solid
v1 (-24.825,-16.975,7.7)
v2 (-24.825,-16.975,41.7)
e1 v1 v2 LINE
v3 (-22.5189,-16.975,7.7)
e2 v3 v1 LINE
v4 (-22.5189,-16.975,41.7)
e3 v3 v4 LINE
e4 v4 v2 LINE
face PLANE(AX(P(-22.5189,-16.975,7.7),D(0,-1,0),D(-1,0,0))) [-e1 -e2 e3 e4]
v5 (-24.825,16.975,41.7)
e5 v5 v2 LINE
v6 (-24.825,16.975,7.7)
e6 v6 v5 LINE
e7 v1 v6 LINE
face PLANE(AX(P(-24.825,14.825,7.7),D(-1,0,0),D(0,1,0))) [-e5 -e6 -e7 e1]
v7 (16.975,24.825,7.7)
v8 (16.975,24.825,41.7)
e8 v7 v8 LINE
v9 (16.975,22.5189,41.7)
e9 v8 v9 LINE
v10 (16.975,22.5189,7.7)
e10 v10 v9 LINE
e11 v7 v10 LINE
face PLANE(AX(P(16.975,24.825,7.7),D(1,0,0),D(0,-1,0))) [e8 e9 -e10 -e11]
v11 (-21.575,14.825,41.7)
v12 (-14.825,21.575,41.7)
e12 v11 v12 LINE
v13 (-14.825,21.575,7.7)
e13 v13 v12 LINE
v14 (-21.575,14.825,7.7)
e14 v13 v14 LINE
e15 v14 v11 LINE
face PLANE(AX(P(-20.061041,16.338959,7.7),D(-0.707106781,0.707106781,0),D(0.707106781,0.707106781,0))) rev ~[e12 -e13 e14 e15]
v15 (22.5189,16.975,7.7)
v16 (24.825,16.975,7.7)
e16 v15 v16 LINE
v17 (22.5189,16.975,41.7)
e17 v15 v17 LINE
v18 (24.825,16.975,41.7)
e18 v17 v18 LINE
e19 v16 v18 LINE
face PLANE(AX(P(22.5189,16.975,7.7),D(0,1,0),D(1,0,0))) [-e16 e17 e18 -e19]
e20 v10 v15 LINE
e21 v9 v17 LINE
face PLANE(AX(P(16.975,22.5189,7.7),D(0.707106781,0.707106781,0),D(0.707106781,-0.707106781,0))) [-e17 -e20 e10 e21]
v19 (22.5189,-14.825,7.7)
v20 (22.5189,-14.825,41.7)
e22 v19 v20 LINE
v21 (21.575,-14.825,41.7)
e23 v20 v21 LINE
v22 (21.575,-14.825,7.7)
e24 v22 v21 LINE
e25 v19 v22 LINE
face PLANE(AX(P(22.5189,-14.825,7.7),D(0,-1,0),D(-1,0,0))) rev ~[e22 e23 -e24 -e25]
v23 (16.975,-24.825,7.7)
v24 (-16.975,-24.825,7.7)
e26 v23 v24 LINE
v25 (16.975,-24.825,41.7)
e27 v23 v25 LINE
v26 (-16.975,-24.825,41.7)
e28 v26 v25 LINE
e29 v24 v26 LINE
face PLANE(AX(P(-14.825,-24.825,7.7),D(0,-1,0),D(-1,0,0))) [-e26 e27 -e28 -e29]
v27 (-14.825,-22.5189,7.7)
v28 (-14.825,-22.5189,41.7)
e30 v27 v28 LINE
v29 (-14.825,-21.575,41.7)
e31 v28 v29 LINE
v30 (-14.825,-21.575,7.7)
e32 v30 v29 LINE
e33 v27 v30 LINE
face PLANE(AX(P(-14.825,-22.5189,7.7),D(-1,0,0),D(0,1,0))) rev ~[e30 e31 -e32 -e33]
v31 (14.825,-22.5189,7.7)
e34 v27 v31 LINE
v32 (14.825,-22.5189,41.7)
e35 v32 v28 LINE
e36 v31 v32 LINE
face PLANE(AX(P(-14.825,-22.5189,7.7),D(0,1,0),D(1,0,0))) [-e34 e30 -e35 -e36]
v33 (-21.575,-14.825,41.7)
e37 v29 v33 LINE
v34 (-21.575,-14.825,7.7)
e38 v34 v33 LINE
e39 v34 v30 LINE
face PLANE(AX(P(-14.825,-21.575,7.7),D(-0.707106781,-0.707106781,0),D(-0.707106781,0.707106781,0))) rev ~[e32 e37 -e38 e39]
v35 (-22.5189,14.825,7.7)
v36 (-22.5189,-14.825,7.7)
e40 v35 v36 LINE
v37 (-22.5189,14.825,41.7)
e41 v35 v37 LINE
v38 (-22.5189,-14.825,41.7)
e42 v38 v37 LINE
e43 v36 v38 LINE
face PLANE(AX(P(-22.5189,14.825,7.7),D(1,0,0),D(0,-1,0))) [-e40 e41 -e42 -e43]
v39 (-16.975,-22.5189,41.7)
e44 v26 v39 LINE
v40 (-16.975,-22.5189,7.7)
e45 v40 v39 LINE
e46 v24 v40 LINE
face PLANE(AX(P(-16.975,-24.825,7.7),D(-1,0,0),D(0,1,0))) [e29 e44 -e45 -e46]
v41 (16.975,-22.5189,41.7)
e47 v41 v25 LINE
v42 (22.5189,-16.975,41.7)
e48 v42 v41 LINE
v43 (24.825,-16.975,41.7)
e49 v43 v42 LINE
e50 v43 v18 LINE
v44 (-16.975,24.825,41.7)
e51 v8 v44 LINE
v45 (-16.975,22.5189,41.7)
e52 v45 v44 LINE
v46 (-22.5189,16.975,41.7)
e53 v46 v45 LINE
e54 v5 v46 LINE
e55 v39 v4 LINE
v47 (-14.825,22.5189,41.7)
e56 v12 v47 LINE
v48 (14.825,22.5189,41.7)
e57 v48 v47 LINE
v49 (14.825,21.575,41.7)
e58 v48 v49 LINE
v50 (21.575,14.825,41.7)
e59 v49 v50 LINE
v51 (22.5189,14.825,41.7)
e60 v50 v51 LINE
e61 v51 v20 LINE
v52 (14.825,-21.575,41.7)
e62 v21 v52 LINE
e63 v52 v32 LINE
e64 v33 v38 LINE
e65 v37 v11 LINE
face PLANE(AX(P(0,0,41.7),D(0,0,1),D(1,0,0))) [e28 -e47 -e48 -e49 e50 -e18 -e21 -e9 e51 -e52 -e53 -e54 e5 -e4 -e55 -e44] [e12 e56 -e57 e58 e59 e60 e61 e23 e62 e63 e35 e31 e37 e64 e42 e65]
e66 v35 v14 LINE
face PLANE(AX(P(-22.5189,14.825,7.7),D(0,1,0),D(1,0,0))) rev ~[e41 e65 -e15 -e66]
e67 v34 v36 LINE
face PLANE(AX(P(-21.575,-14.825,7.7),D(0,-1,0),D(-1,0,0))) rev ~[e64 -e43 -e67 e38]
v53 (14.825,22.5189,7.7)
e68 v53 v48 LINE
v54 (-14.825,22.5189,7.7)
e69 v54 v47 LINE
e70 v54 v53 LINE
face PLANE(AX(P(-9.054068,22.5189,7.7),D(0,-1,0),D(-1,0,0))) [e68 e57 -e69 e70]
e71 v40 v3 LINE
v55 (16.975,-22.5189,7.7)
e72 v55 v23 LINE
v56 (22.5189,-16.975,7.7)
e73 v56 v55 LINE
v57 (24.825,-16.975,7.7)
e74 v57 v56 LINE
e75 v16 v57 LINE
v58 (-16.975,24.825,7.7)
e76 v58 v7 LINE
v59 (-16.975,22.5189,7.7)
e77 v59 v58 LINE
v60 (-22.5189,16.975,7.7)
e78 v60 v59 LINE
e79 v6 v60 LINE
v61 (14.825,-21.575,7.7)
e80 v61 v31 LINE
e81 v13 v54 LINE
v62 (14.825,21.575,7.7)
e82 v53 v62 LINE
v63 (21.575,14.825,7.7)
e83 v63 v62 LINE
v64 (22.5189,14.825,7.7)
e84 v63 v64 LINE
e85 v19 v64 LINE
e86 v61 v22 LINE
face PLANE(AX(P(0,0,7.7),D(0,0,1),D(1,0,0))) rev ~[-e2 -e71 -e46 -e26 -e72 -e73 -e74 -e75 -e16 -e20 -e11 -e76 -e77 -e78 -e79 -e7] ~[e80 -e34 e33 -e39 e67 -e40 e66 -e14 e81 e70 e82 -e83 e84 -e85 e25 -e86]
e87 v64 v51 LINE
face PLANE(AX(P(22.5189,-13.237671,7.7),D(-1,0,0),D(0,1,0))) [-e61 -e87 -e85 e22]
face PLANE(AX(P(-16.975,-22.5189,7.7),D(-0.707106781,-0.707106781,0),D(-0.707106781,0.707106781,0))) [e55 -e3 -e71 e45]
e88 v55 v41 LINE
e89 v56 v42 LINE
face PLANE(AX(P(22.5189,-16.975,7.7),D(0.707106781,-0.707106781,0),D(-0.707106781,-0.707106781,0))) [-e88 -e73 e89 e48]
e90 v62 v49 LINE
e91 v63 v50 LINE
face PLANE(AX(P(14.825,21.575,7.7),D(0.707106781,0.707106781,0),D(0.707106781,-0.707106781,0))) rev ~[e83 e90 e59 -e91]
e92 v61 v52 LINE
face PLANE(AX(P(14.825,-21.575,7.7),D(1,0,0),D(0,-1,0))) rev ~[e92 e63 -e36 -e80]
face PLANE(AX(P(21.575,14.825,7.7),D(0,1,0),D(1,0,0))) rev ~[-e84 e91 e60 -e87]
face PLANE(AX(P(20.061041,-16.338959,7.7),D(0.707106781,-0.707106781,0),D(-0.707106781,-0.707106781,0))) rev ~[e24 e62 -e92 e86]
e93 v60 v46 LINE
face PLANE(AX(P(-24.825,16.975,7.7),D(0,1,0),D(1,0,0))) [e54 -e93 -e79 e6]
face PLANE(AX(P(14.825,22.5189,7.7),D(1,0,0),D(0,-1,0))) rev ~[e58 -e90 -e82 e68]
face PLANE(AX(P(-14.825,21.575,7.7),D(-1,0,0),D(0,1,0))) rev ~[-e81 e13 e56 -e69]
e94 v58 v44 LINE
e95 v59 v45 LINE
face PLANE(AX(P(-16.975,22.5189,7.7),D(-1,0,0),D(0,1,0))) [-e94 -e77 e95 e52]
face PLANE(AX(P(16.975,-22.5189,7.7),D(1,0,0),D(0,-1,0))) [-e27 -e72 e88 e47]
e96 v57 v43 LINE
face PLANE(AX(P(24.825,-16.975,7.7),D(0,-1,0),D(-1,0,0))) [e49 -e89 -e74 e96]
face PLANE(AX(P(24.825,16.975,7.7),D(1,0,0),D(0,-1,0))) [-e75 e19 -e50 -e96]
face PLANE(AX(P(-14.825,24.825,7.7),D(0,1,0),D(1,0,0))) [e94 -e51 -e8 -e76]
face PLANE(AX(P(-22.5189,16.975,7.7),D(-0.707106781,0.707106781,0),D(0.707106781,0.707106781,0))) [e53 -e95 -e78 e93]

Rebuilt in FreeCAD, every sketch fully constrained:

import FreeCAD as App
import Part
import Sketcher

doc = App.newDocument("Part")
body = doc.addObject("PartDesign::Body", "Body")

# Sketch on XY plane
sketch1 = doc.addObject("Sketcher::SketchObject", "Sketch")
body.addObject(sketch1)
sketch1.AttachmentSupport = (doc.XY_Plane, [""])
sketch1.MapMode = "FlatFace"
sketch1.AttachmentOffset = App.Placement(App.Vector(0, 0, 7.7), App.Rotation())
sketch1.addGeometry(Part.LineSegment(App.Vector(-16.975, 24.825, 0), App.Vector(-16.975, 22.5189, 0)), False)
sketch1.addGeometry(Part.LineSegment(App.Vector(-16.975, 22.5189, 0), App.Vector(-22.5189, 16.975, 0)), False)
sketch1.addGeometry(Part.LineSegment(App.Vector(-22.5189, 16.975, 0), App.Vector(-24.825, 16.975, 0)), False)
sketch1.addGeometry(Part.LineSegment(App.Vector(-24.825, 16.975, 0), App.Vector(-24.825, -16.975, 0)), False)
sketch1.addGeometry(Part.LineSegment(App.Vector(-24.825, -16.975, 0), App.Vector(-22.5189, -16.975, 0)), False)
sketch1.addGeometry(Part.LineSegment(App.Vector(-22.5189, -16.975, 0), App.Vector(-16.975, -22.5189, 0)), False)
sketch1.addGeometry(Part.LineSegment(App.Vector(-16.975, -22.5189, 0), App.Vector(-16.975, -24.825, 0)), False)
sketch1.addGeometry(Part.LineSegment(App.Vector(-16.975, -24.825, 0), App.Vector(16.975, -24.825, 0)), False)
sketch1.addGeometry(Part.LineSegment(App.Vector(16.975, -24.825, 0), App.Vector(16.975, -22.5189, 0)), False)
sketch1.addGeometry(Part.LineSegment(App.Vector(16.975, -22.5189, 0), App.Vector(22.5189, -16.975, 0)), False)
sketch1.addGeometry(Part.LineSegment(App.Vector(22.5189, -16.975, 0), App.Vector(24.825, -16.975, 0)), False)
sketch1.addGeometry(Part.LineSegment(App.Vector(24.825, -16.975, 0), App.Vector(24.825, 16.975, 0)), False)
sketch1.addGeometry(Part.LineSegment(App.Vector(24.825, 16.975, 0), App.Vector(22.5189, 16.975, 0)), False)
sketch1.addGeometry(Part.LineSegment(App.Vector(22.5189, 16.975, 0), App.Vector(16.975, 22.5189, 0)), False)
sketch1.addGeometry(Part.LineSegment(App.Vector(16.975, 22.5189, 0), App.Vector(16.975, 24.825, 0)), False)
sketch1.addGeometry(Part.LineSegment(App.Vector(16.975, 24.825, 0), App.Vector(-16.975, 24.825, 0)), False)
sketch1.addGeometry(Part.LineSegment(App.Vector(14.825, 22.5189, 0), App.Vector(14.825, 21.575, 0)), False)
sketch1.addGeometry(Part.LineSegment(App.Vector(14.825, 21.575, 0), App.Vector(21.575, 14.825, 0)), False)
sketch1.addGeometry(Part.LineSegment(App.Vector(21.575, 14.825, 0), App.Vector(22.5189, 14.825, 0)), False)
sketch1.addGeometry(Part.LineSegment(App.Vector(22.5189, 14.825, 0), App.Vector(22.5189, -14.825, 0)), False)
sketch1.addGeometry(Part.LineSegment(App.Vector(22.5189, -14.825, 0), App.Vector(21.575, -14.825, 0)), False)
sketch1.addGeometry(Part.LineSegment(App.Vector(21.575, -14.825, 0), App.Vector(14.825, -21.575, 0)), False)
sketch1.addGeometry(Part.LineSegment(App.Vector(14.825, -21.575, 0), App.Vector(14.825, -22.5189, 0)), False)
sketch1.addGeometry(Part.LineSegment(App.Vector(14.825, -22.5189, 0), App.Vector(-14.825, -22.5189, 0)), False)
sketch1.addGeometry(Part.LineSegment(App.Vector(-14.825, -22.5189, 0), App.Vector(-14.825, -21.575, 0)), False)
sketch1.addGeometry(Part.LineSegment(App.Vector(-14.825, -21.575, 0), App.Vector(-21.575, -14.825, 0)), False)
sketch1.addGeometry(Part.LineSegment(App.Vector(-21.575, -14.825, 0), App.Vector(-22.5189, -14.825, 0)), False)
sketch1.addGeometry(Part.LineSegment(App.Vector(-22.5189, -14.825, 0), App.Vector(-22.5189, 14.825, 0)), False)
sketch1.addGeometry(Part.LineSegment(App.Vector(-22.5189, 14.825, 0), App.Vector(-21.575, 14.825, 0)), False)
sketch1.addGeometry(Part.LineSegment(App.Vector(-21.575, 14.825, 0), App.Vector(-14.825, 21.575, 0)), False)
sketch1.addGeometry(Part.LineSegment(App.Vector(-14.825, 21.575, 0), App.Vector(-14.825, 22.5189, 0)), False)
sketch1.addGeometry(Part.LineSegment(App.Vector(-14.825, 22.5189, 0), App.Vector(14.825, 22.5189, 0)), False)
sketch1.addConstraint(Sketcher.Constraint("Coincident", 0, 2, 1, 1))
sketch1.addConstraint(Sketcher.Constraint("Coincident", 1, 2, 2, 1))
sketch1.addConstraint(Sketcher.Constraint("Coincident", 2, 2, 3, 1))
sketch1.addConstraint(Sketcher.Constraint("Coincident", 3, 2, 4, 1))
sketch1.addConstraint(Sketcher.Constraint("Coincident", 4, 2, 5, 1))
sketch1.addConstraint(Sketcher.Constraint("Coincident", 5, 2, 6, 1))
sketch1.addConstraint(Sketcher.Constraint("Coincident", 6, 2, 7, 1))
sketch1.addConstraint(Sketcher.Constraint("Coincident", 7, 2, 8, 1))
sketch1.addConstraint(Sketcher.Constraint("Coincident", 8, 2, 9, 1))
sketch1.addConstraint(Sketcher.Constraint("Coincident", 9, 2, 10, 1))
sketch1.addConstraint(Sketcher.Constraint("Coincident", 10, 2, 11, 1))
sketch1.addConstraint(Sketcher.Constraint("Coincident", 11, 2, 12, 1))
sketch1.addConstraint(Sketcher.Constraint("Coincident", 12, 2, 13, 1))
sketch1.addConstraint(Sketcher.Constraint("Coincident", 13, 2, 14, 1))
sketch1.addConstraint(Sketcher.Constraint("Coincident", 14, 2, 15, 1))
sketch1.addConstraint(Sketcher.Constraint("Coincident", 15, 2, 0, 1))
sketch1.addConstraint(Sketcher.Constraint("Coincident", 16, 2, 17, 1))
sketch1.addConstraint(Sketcher.Constraint("Coincident", 17, 2, 18, 1))
sketch1.addConstraint(Sketcher.Constraint("Coincident", 18, 2, 19, 1))
sketch1.addConstraint(Sketcher.Constraint("Coincident", 19, 2, 20, 1))
sketch1.addConstraint(Sketcher.Constraint("Coincident", 20, 2, 21, 1))
sketch1.addConstraint(Sketcher.Constraint("Coincident", 21, 2, 22, 1))
sketch1.addConstraint(Sketcher.Constraint("Coincident", 22, 2, 23, 1))
sketch1.addConstraint(Sketcher.Constraint("Coincident", 23, 2, 24, 1))
sketch1.addConstraint(Sketcher.Constraint("Coincident", 24, 2, 25, 1))
sketch1.addConstraint(Sketcher.Constraint("Coincident", 25, 2, 26, 1))
sketch1.addConstraint(Sketcher.Constraint("Coincident", 26, 2, 27, 1))
sketch1.addConstraint(Sketcher.Constraint("Coincident", 27, 2, 28, 1))
sketch1.addConstraint(Sketcher.Constraint("Coincident", 28, 2, 29, 1))
sketch1.addConstraint(Sketcher.Constraint("Coincident", 29, 2, 30, 1))
sketch1.addConstraint(Sketcher.Constraint("Coincident", 30, 2, 31, 1))
sketch1.addConstraint(Sketcher.Constraint("Coincident", 31, 2, 16, 1))
sketch1.addConstraint(Sketcher.Constraint("Vertical", 0))
sketch1.addConstraint(Sketcher.Constraint("Horizontal", 2))
sketch1.addConstraint(Sketcher.Constraint("Vertical", 3))
sketch1.addConstraint(Sketcher.Constraint("Horizontal", 4))
sketch1.addConstraint(Sketcher.Constraint("Vertical", 6))
sketch1.addConstraint(Sketcher.Constraint("Horizontal", 7))
sketch1.addConstraint(Sketcher.Constraint("Vertical", 8))
sketch1.addConstraint(Sketcher.Constraint("Horizontal", 10))
sketch1.addConstraint(Sketcher.Constraint("Vertical", 11))
sketch1.addConstraint(Sketcher.Constraint("Horizontal", 12))
sketch1.addConstraint(Sketcher.Constraint("Vertical", 14))
sketch1.addConstraint(Sketcher.Constraint("Horizontal", 15))
sketch1.addConstraint(Sketcher.Constraint("Vertical", 16))
sketch1.addConstraint(Sketcher.Constraint("Horizontal", 18))
sketch1.addConstraint(Sketcher.Constraint("Vertical", 19))
sketch1.addConstraint(Sketcher.Constraint("Horizontal", 20))
sketch1.addConstraint(Sketcher.Constraint("Vertical", 22))
sketch1.addConstraint(Sketcher.Constraint("Horizontal", 23))
sketch1.addConstraint(Sketcher.Constraint("Vertical", 24))
sketch1.addConstraint(Sketcher.Constraint("Horizontal", 26))
sketch1.addConstraint(Sketcher.Constraint("Vertical", 27))
sketch1.addConstraint(Sketcher.Constraint("Horizontal", 28))
sketch1.addConstraint(Sketcher.Constraint("Vertical", 30))
sketch1.addConstraint(Sketcher.Constraint("Horizontal", 31))
sketch1.addConstraint(Sketcher.Constraint("Symmetric", 0, 2, 8, 2, -1, 1))
sketch1.addConstraint(Sketcher.Constraint("Symmetric", 1, 2, 9, 2, -1, 1))
sketch1.addConstraint(Sketcher.Constraint("Symmetric", 3, 2, 11, 2, -1, 1))
sketch1.addConstraint(Sketcher.Constraint("Symmetric", 5, 2, 13, 2, -1, 1))
sketch1.addConstraint(Sketcher.Constraint("Symmetric", 16, 2, 24, 2, -1, 1))
sketch1.addConstraint(Sketcher.Constraint("Symmetric", 17, 2, 25, 2, -1, 1))
sketch1.addConstraint(Sketcher.Constraint("Symmetric", 19, 2, 27, 2, -1, 1))
sketch1.addConstraint(Sketcher.Constraint("Symmetric", 21, 2, 29, 2, -1, 1))
sketch1.addConstraint(Sketcher.Constraint("Symmetric", 5, 2, 8, 2, -2))
sketch1.addConstraint(Sketcher.Constraint("Symmetric", 4, 2, 9, 2, -2))
sketch1.addConstraint(Sketcher.Constraint("Symmetric", 21, 2, 24, 2, -2))
sketch1.addConstraint(Sketcher.Constraint("Symmetric", 20, 2, 25, 2, -2))
sketch1.addConstraint(Sketcher.Constraint("Perpendicular", 1, 5))
sketch1.addConstraint(Sketcher.Constraint("Perpendicular", 9, 13))
sketch1.addConstraint(Sketcher.Constraint("Parallel", 13, 17))
sketch1.addConstraint(Sketcher.Constraint("Perpendicular", 25, 29))
sketch1.addConstraint(Sketcher.Constraint("Horizontal", 8, 2, 22, 2))
sketch1.addConstraint(Sketcher.Constraint("Horizontal", 13, 2, 30, 2))
sketch1.addConstraint(Sketcher.Constraint("Vertical", 12, 2, 18, 2))
sketch1.addConstraint(Sketcher.Constraint("Equal", 12, 0))
sketch1.addConstraint(Sketcher.Constraint("Equal", 15, 3))
sketch1.addConstraint(Sketcher.Constraint("Equal", 0, 6))
sketch1.addConstraint(Sketcher.Constraint("Equal", 28, 16))
sketch1.addConstraint(Sketcher.Constraint("DistanceX", 16, 2, 11, 2, 10.0))
sketch1.addConstraint(Sketcher.Constraint("DistanceX", 16, 2, 17, 2, 6.75))
sketch1.addConstraint(Sketcher.Constraint("DistanceX", 7, 1, 7, 2, 33.95))
sketch1.addConstraint(Sketcher.Constraint("DistanceX", 23, 2, 23, 1, 29.65))
sketch1.addConstraint(Sketcher.Constraint("DistanceX", 2, 2, 2, 1, 2.306))
pad1 = doc.addObject("PartDesign::Pad", "Pad")
body.addObject(pad1)
pad1.Profile = sketch1
pad1.Length = 34

doc.recompute()
